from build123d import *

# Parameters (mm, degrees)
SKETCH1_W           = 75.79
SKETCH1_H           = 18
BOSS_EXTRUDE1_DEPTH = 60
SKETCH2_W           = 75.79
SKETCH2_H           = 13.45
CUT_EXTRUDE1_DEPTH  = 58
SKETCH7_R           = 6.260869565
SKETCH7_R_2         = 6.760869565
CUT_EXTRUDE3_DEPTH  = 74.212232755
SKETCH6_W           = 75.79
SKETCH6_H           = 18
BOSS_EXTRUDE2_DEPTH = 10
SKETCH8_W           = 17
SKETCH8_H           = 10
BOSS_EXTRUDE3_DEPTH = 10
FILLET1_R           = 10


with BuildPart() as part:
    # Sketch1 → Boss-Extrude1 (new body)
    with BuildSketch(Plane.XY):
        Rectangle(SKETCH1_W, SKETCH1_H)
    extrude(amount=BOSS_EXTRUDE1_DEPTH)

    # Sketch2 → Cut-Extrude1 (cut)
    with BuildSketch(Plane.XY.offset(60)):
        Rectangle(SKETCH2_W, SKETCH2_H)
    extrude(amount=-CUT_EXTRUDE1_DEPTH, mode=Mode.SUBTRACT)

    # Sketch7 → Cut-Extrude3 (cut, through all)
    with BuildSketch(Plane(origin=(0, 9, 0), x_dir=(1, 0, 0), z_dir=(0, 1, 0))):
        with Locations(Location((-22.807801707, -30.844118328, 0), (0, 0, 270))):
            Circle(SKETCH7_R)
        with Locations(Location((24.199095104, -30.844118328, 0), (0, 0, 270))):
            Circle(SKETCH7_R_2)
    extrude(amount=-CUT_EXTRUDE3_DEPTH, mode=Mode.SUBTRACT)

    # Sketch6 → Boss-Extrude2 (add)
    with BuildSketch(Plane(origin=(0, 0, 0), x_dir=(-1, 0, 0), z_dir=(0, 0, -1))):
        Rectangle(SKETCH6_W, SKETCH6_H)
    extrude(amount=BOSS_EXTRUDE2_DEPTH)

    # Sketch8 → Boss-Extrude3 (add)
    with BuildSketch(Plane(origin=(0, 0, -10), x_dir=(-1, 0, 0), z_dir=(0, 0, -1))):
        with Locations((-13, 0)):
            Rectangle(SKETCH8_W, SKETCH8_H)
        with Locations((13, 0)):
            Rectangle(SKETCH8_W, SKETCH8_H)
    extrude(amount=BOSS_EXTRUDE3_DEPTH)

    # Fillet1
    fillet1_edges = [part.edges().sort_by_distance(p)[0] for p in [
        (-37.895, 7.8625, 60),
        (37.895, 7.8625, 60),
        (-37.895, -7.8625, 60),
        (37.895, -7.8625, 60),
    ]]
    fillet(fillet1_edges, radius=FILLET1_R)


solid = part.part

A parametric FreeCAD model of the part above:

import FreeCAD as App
import Part
import Sketcher

V = App.Vector
Q = App.Units.Quantity


def edges_at(feature, points):
    """Names of the edges that pass closest to the given points."""
    edges = feature.Shape.Edges
    near = lambda p: min(range(len(edges)), key=lambda i: edges[i].distToShape(Part.Vertex(*p))[0])
    return sorted({f"Edge{near(p) + 1}" for p in points})


def add_polygon(sketch, points):
    """Adds a closed chain of lines whose ends are joined by coincident constraints."""
    first, n = sketch.GeometryCount, len(points)
    for a, b in zip(points, points[1:] + points[:1]):
        sketch.addGeometry(Part.LineSegment(App.Vector(*a, 0), App.Vector(*b, 0)), False)
    for i in range(n):
        sketch.addConstraint(Sketcher.Constraint("Coincident", first + i, 2, first + (i + 1) % n, 1))

doc = App.newDocument("Part")
params = doc.addObject("Spreadsheet::Sheet", "Params")
for row, (alias, value) in enumerate([
    ("sketch1_height", "18 mm"),
    ("sketch1_width", "75.79 mm"),
    ("pad1_length", "60 mm"),
    ("sketch2_width", "75.79 mm"),
    ("sketch2_height", "13.45 mm"),
    ("pocket1_length", "58 mm"),
    ("sketch4_height", "18 mm"),
    ("sketch4_width", "75.79 mm"),
    ("pad2_length", "10 mm"),
    ("sketch5_width", "17 mm"),
    ("sketch5_height", "10 mm"),
    ("pad3_length", "10 mm"),
    ("fillet_radius", "10 mm"),
], start=1):
    params.set(f"A{row}", alias)
    params.set(f"B{row}", "=" + value)
    params.setAlias(f"B{row}", alias)

body = doc.addObject("PartDesign::Body", "Body")

# Sketch on XY plane
sketch1 = doc.addObject("Sketcher::SketchObject", "Sketch")
body.addObject(sketch1)
sketch1.AttachmentSupport = (doc.XY_Plane, [""])
sketch1.MapMode = "FlatFace"
add_polygon(sketch1, [(-38, 9), (-38, -9), (38, -9), (38, 9)])  # lines 0-3
sketch1.addConstraint([
    Sketcher.Constraint("Vertical", 0),
    Sketcher.Constraint("Horizontal", 1),
    Sketcher.Constraint("Vertical", 2),
    Sketcher.Constraint("Horizontal", 3),
    Sketcher.Constraint("Symmetric", 0, 2, 2, 2, -1, 1),
    Sketcher.Constraint("DistanceY", 0, 2, 0, 1, Q("18 mm")),
    Sketcher.Constraint("DistanceX", 1, 1, 1, 2, Q("75.79 mm")),
])
sketch1.setExpression("Constraints[9]", "Params.sketch1_height")
sketch1.setExpression("Constraints[10]", "Params.sketch1_width")
pad1 = doc.addObject("PartDesign::Pad", "Pad")
body.addObject(pad1)
pad1.Profile = sketch1
pad1.setExpression("Length", "Params.pad1_length")

# Sketch on XY plane
sketch2 = doc.addObject("Sketcher::SketchObject", "Sketch001")
body.addObject(sketch2)
sketch2.AttachmentSupport = (doc.XY_Plane, [""])
sketch2.MapMode = "FlatFace"
sketch2.AttachmentOffset = App.Placement(V(0, 0, 60), App.Rotation())
add_polygon(sketch2, [(-38, 7), (-38, -7), (38, -7), (38, 7)])  # lines 0-3
sketch2.addConstraint([
    Sketcher.Constraint("Vertical", 0),
    Sketcher.Constraint("Horizontal", 1),
    Sketcher.Constraint("Vertical", 2),
    Sketcher.Constraint("Horizontal", 3),
    Sketcher.Constraint("Symmetric", 0, 2, 2, 2, -1, 1),
    Sketcher.Constraint("DistanceX", 1, 1, 1, 2, Q("75.79 mm")),
    Sketcher.Constraint("DistanceY", 0, 2, 0, 1, Q("13.45 mm")),
])
sketch2.setExpression("Constraints[9]", "Params.sketch2_width")
sketch2.setExpression("Constraints[10]", "Params.sketch2_height")
pocket1 = doc.addObject("PartDesign::Pocket", "Pocket")
body.addObject(pocket1)
pocket1.Profile = sketch2
pocket1.setExpression("Length", "Params.pocket1_length")

# Sketch on XZ plane
sketch3 = doc.addObject("Sketcher::SketchObject", "Sketch002")
body.addObject(sketch3)
sketch3.AttachmentSupport = (doc.XZ_Plane, [""])
sketch3.MapMode = "FlatFace"
sketch3.AttachmentOffset = App.Placement(V(0, 0, -9), App.Rotation())
sketch3.addGeometry([
    Part.Circle(V(-23, 31, 0), V(0, 0, 1), 6),
    Part.Circle(V(24, 31, 0), V(0, 0, 1), 7),
], False)
sketch3.addConstraint([
    Sketcher.Constraint("Horizontal", 0, 3, 1, 3),
    Sketcher.Constraint("Diameter", 0, Q("12.521739 mm")),
    Sketcher.Constraint("Diameter", 1, Q("13.521739 mm")),
    Sketcher.Constraint("DistanceX", 0, 3, -1, 1, Q("22.807802 mm")),
    Sketcher.Constraint("DistanceY", -1, 1, 0, 3, Q("30.844118 mm")),
    Sketcher.Constraint("DistanceX", -1, 1, 1, 3, Q("24.199095 mm")),
])
pocket2 = doc.addObject("PartDesign::Pocket", "Pocket001")
body.addObject(pocket2)
pocket2.Profile = sketch3
pocket2.Type = "ThroughAll"
pocket2.Reversed = True

# Sketch on XY plane
sketch4 = doc.addObject("Sketcher::SketchObject", "Sketch003")
body.addObject(sketch4)
sketch4.AttachmentSupport = (doc.XY_Plane, [""])
sketch4.MapMode = "FlatFace"
add_polygon(sketch4, [(38, 9), (38, -9), (-38, -9), (-38, 9)])  # lines 0-3
sketch4.addConstraint([
    Sketcher.Constraint("Vertical", 0),
    Sketcher.Constraint("Horizontal", 1),
    Sketcher.Constraint("Vertical", 2),
    Sketcher.Constraint("Horizontal", 3),
    Sketcher.Constraint("Symmetric", 0, 2, 2, 2, -1, 1),
    Sketcher.Constraint("DistanceY", 0, 2, 0, 1, Q("18 mm")),
    Sketcher.Constraint("DistanceX", 1, 2, 1, 1, Q("75.79 mm")),
])
sketch4.setExpression("Constraints[9]", "Params.sketch4_height")
sketch4.setExpression("Constraints[10]", "Params.sketch4_width")
pad2 = doc.addObject("PartDesign::Pad", "Pad001")
body.addObject(pad2)
pad2.Profile = sketch4
pad2.setExpression("Length", "Params.pad2_length")
pad2.Reversed = True

# Sketch on XY plane
sketch5 = doc.addObject("Sketcher::SketchObject", "Sketch004")
body.addObject(sketch5)
sketch5.AttachmentSupport = (doc.XY_Plane, [""])
sketch5.MapMode = "FlatFace"
sketch5.AttachmentOffset = App.Placement(V(0, 0, -10), App.Rotation())
add_polygon(sketch5, [(22, 5), (22, -5), (4, -5), (4, 5)])  # lines 0-3
add_polygon(sketch5, [(-4, 5), (-4, -5), (-22, -5), (-22, 5)])  # lines 4-7
sketch5.addConstraint([
    Sketcher.Constraint("Vertical", 0),
    Sketcher.Constraint("Horizontal", 1),
    Sketcher.Constraint("Vertical", 2),
    Sketcher.Constraint("Horizontal", 3),
    Sketcher.Constraint("Vertical", 4),
    Sketcher.Constraint("Horizontal", 5),
    Sketcher.Constraint("Vertical", 6),
    Sketcher.Constraint("Horizontal", 7),
    Sketcher.Constraint("Symmetric", 2, 2, 4, 2, -1, 1),
    Sketcher.Constraint("Symmetric", 0, 2, 6, 2, -1, 1),
    Sketcher.Constraint("Horizontal", 1, 2, 4, 2),
    Sketcher.Constraint("DistanceX", 1, 2, 1, 1, Q("17 mm")),
    Sketcher.Constraint("DistanceY", 0, 2, 0, 1, Q("10 mm")),
    Sketcher.Constraint("DistanceX", 4, 2, 1, 2, Q("9 mm")),
])
sketch5.setExpression("Constraints[19]", "Params.sketch5_width")
sketch5.setExpression("Constraints[20]", "Params.sketch5_height")
pad3 = doc.addObject("PartDesign::Pad", "Pad002")
body.addObject(pad3)
pad3.Profile = sketch5
pad3.setExpression("Length", "Params.pad3_length")
pad3.Reversed = True
doc.recompute()

fillet = doc.addObject("PartDesign::Fillet", "Fillet")
body.addObject(fillet)
fillet.Base = (pad3, edges_at(pad3, [
    (-37.895, 7.862, 60),
    (37.895, 7.862, 60),
    (-37.895, -7.862, 60),
    (37.895, -7.862, 60),
]))
fillet.setExpression("Radius", "Params.fillet_radius")

doc.recompute()
